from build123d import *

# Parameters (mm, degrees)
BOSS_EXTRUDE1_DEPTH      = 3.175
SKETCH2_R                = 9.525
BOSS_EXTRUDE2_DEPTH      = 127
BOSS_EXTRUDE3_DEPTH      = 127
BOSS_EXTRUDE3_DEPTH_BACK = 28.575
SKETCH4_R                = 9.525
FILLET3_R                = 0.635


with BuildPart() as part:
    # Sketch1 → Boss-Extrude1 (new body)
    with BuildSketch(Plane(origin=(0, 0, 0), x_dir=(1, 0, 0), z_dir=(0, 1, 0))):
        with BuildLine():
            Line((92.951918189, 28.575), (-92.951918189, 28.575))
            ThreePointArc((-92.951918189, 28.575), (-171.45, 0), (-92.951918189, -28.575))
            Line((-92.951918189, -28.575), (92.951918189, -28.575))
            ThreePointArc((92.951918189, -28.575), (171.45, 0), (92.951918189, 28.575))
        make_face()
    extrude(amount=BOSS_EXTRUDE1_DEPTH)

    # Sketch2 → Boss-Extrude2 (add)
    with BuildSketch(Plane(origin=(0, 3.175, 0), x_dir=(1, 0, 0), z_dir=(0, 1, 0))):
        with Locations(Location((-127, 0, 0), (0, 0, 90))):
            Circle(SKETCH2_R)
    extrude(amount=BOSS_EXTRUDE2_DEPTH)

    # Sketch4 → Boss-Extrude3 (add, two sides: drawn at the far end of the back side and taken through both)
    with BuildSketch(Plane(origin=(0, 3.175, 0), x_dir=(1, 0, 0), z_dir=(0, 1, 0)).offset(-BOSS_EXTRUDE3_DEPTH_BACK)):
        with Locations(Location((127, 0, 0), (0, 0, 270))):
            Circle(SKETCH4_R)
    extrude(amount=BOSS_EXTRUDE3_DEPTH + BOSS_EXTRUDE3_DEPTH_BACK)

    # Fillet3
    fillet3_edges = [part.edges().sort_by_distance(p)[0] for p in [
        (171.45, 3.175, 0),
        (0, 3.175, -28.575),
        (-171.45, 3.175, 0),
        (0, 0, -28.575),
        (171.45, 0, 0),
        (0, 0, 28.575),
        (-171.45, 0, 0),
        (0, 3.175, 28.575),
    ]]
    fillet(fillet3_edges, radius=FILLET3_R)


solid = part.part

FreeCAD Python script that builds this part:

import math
import FreeCAD as App
import Part
import Sketcher
from FreeCAD import Vector
Q = App.Units.Quantity


def edges_at(feature, points):
    """Names of the edges that pass closest to the given points."""
    edges = feature.Shape.Edges
    near = lambda p: min(range(len(edges)), key=lambda i: edges[i].distToShape(Part.Vertex(*p))[0])
    return sorted({f"Edge{near(p) + 1}" for p in points})

doc = App.newDocument("Part")
body = doc.addObject("PartDesign::Body", "Body")

sketch1 = body.newObject("Sketcher::SketchObject", "Sketch")
sketch1.AttachmentSupport = (doc.getObject("XZ_Plane"), [""])
sketch1.MapMode = "FlatFace"
sketch1.addGeometry([
    Part.LineSegment(Vector(93, -29, 0), Vector(-93, -29, 0)),
    Part.ArcOfCircle(Part.Circle(Vector(-127, 0, 0), Vector(0, 0, 1), 44), math.radians(40), math.radians(320)),
    Part.LineSegment(Vector(-93, 29, 0), Vector(93, 29, 0)),
    Part.ArcOfCircle(Part.Circle(Vector(127, 0, 0), Vector(0, 0, 1), 44), math.radians(-140), math.radians(140)),
], False)
sketch1.addConstraint([
    Sketcher.Constraint("Coincident", 0, 2, 1, 2),
    Sketcher.Constraint("Coincident", 1, 1, 2, 1),
    Sketcher.Constraint("Coincident", 2, 2, 3, 2),
    Sketcher.Constraint("Coincident", 3, 1, 0, 1),
    Sketcher.Constraint("Horizontal", 0),
    Sketcher.Constraint("Horizontal", 2),
    Sketcher.Constraint("Equal", 1, 3),
    Sketcher.Constraint("Symmetric", 1, 3, 3, 3, -1, 1),
    Sketcher.Constraint("Symmetric", 0, 2, 1, 1, -1),
    Sketcher.Constraint("Radius", 1, Q("1.75 in")),
    Sketcher.Constraint("DistanceX", 1, 3, -1, 1, Q("5 in")),
    Sketcher.Constraint("DistanceY", 0, 2, 1, 1, Q("2.25 in")),
])
pad1 = body.newObject("PartDesign::Pad", "Pad")
pad1.Profile = sketch1
pad1.Length = Q("0.125 in")
pad1.Reversed = True

sketch2 = body.newObject("Sketcher::SketchObject", "Sketch001")
sketch2.AttachmentSupport = (doc.getObject("XZ_Plane"), [""])
sketch2.MapMode = "FlatFace"
sketch2.AttachmentOffset = App.Placement(Vector(0, 0, -0.125 * 25.4), App.Rotation())
sketch2.addGeometry(Part.Circle(Vector(-127, 0, 0), Vector(0, 0, 1), 10), False)
sketch2.addConstraint([
    Sketcher.Constraint("PointOnObject", 0, 3, -1),
    Sketcher.Constraint("Diameter", 0, Q("0.75 in")),
    Sketcher.Constraint("DistanceX", 0, 3, -1, 1, Q("5 in")),
])
pad2 = body.newObject("PartDesign::Pad", "Pad001")
pad2.Profile = sketch2
pad2.Length = Q("5 in")
pad2.Reversed = True

sketch3 = body.newObject("Sketcher::SketchObject", "Sketch002")
sketch3.AttachmentSupport = (doc.getObject("XZ_Plane"), [""])
sketch3.MapMode = "FlatFace"
sketch3.AttachmentOffset = App.Placement(Vector(0, 0, -0.125 * 25.4), App.Rotation())
sketch3.addGeometry(Part.Circle(Vector(127, 0, 0), Vector(0, 0, 1), 10), False)
sketch3.addConstraint([
    Sketcher.Constraint("PointOnObject", 0, 3, -1),
    Sketcher.Constraint("Diameter", 0, Q("0.75 in")),
    Sketcher.Constraint("DistanceX", -1, 1, 0, 3, Q("5 in")),
])
pad3 = body.newObject("PartDesign::Pad", "Pad002")
pad3.Profile = sketch3
pad3.Type = "TwoLengths"
pad3.Length = Q("5 in")
pad3.Length2 = Q("1.125 in")
pad3.Reversed = True
doc.recompute()

fillet = body.newObject("PartDesign::Fillet", "Fillet")
fillet.Base = (pad3, edges_at(pad3, [
    (171.45, 3.175, 0),
    (0, 3.175, -28.575),
    (-171.45, 3.175, 0),
    (0, 0, -28.575),
    (171.45, 0, 0),
    (0, 0, 28.575),
    (-171.45, 0, 0),
    (0, 3.175, 28.575),
]))
fillet.Radius = Q("0.025 in")

doc.recompute()
